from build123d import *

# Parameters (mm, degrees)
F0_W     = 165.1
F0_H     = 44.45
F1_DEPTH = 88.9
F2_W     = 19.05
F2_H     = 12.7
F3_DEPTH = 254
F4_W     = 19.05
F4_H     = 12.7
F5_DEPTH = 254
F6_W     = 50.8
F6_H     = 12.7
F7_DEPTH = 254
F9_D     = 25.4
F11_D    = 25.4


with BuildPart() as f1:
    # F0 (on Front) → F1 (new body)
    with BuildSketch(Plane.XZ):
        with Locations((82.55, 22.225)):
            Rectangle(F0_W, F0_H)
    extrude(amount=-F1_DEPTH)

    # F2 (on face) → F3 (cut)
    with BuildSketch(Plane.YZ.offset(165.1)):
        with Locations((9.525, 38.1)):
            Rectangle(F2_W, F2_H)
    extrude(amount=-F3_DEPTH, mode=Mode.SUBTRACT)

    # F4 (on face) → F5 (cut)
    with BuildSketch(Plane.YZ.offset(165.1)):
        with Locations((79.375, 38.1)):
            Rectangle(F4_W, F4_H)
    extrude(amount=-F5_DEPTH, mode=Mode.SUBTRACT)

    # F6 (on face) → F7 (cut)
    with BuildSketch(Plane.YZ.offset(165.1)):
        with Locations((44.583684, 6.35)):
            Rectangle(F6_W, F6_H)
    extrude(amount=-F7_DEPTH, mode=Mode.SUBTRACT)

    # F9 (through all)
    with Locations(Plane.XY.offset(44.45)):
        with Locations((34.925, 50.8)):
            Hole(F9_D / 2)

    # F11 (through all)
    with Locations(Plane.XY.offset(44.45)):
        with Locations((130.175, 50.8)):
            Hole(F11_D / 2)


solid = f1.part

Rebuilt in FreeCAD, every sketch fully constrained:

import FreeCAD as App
import Part
import Sketcher

V = App.Vector
Q = App.Units.Quantity


def add_polygon(sketch, points):
    """Adds a closed chain of lines whose ends are joined by coincident constraints."""
    first, n = sketch.GeometryCount, len(points)
    for a, b in zip(points, points[1:] + points[:1]):
        sketch.addGeometry(Part.LineSegment(App.Vector(*a, 0), App.Vector(*b, 0)), False)
    for i in range(n):
        sketch.addConstraint(Sketcher.Constraint("Coincident", first + i, 2, first + (i + 1) % n, 1))

doc = App.newDocument("Part")
params = doc.addObject("Spreadsheet::Sheet", "Params")
for row, (alias, value) in enumerate([
    ("sketch1_width", "6.5 in"),
    ("sketch1_height", "1.75 in"),
    ("pad1_length", "3.5 in"),
    ("sketch2_height", "0.5 in"),
    ("sketch2_width", "0.75 in"),
    ("pocket1_length", "10 in"),
    ("sketch3_height", "0.5 in"),
    ("sketch3_width", "0.75 in"),
    ("pocket2_length", "10 in"),
    ("sketch4_width", "2 in"),
    ("sketch4_height", "0.5 in"),
    ("pocket3_length", "10 in"),
    ("sketch5_diameter", "1 in"),
    ("hole_diameter", "1 in"),
    ("sketch6_diameter", "1 in"),
    ("hole2_diameter", "1 in"),
], start=1):
    params.set(f"A{row}", alias)
    params.set(f"B{row}", "=" + value)
    params.setAlias(f"B{row}", alias)

body = doc.addObject("PartDesign::Body", "Body")

# Sketch on XZ plane
sketch1 = body.newObject("Sketcher::SketchObject", "Sketch")
sketch1.AttachmentSupport = (doc.getObject("XZ_Plane"), [""])
sketch1.MapMode = "FlatFace"
add_polygon(sketch1, [(0, 44), (0, 0), (165, 0), (165, 44)])  # lines 0-3
sketch1.addConstraint(Sketcher.Constraint("Vertical", 0))
sketch1.addConstraint(Sketcher.Constraint("Horizontal", 1))
sketch1.addConstraint(Sketcher.Constraint("Vertical", 2))
sketch1.addConstraint(Sketcher.Constraint("Horizontal", 3))
sketch1.addConstraint(Sketcher.Constraint("Coincident", 0, 2, -1, 1))
sketch1.addConstraint(Sketcher.Constraint("DistanceX", 1, 1, 1, 2, Q("6.5 in")))
sketch1.addConstraint(Sketcher.Constraint("DistanceY", 0, 2, 0, 1, Q("1.75 in")))
sketch1.setExpression("Constraints[9]", "Params.sketch1_width")
sketch1.setExpression("Constraints[10]", "Params.sketch1_height")
pad1 = body.newObject("PartDesign::Pad", "Pad")
pad1.Profile = sketch1
pad1.setExpression("Length", "Params.pad1_length")
pad1.Reversed = True

# Sketch on YZ plane
sketch2 = body.newObject("Sketcher::SketchObject", "Sketch001")
sketch2.AttachmentSupport = (doc.getObject("YZ_Plane"), [""])
sketch2.MapMode = "FlatFace"
sketch2.AttachmentOffset = App.Placement(V(0, 0, 6.5 * 25.4), App.Rotation())
add_polygon(sketch2, [(0, 44), (0, 32), (19, 32), (19, 44)])  # lines 0-3
sketch2.addConstraint(Sketcher.Constraint("Vertical", 0))
sketch2.addConstraint(Sketcher.Constraint("Horizontal", 1))
sketch2.addConstraint(Sketcher.Constraint("Vertical", 2))
sketch2.addConstraint(Sketcher.Constraint("Horizontal", 3))
sketch2.addConstraint(Sketcher.Constraint("PointOnObject", 0, 2, -2))
sketch2.addConstraint(Sketcher.Constraint("DistanceY", 0, 2, 0, 1, Q("0.5 in")))
sketch2.addConstraint(Sketcher.Constraint("DistanceX", 1, 1, 1, 2, Q("0.75 in")))
sketch2.addConstraint(Sketcher.Constraint("DistanceY", -1, 1, 0, 2, Q("1.25 in")))
sketch2.setExpression("Constraints[9]", "Params.sketch2_height")
sketch2.setExpression("Constraints[10]", "Params.sketch2_width")
pocket1 = body.newObject("PartDesign::Pocket", "Pocket")
pocket1.Profile = sketch2
pocket1.setExpression("Length", "Params.pocket1_length")

# Sketch on YZ plane
sketch3 = body.newObject("Sketcher::SketchObject", "Sketch002")
sketch3.AttachmentSupport = (doc.getObject("YZ_Plane"), [""])
sketch3.MapMode = "FlatFace"
sketch3.AttachmentOffset = App.Placement(V(0, 0, 6.5 * 25.4), App.Rotation())
add_polygon(sketch3, [(70, 44), (70, 32), (89, 32), (89, 44)])  # lines 0-3
sketch3.addConstraint(Sketcher.Constraint("Vertical", 0))
sketch3.addConstraint(Sketcher.Constraint("Horizontal", 1))
sketch3.addConstraint(Sketcher.Constraint("Vertical", 2))
sketch3.addConstraint(Sketcher.Constraint("Horizontal", 3))
sketch3.addConstraint(Sketcher.Constraint("DistanceY", 0, 2, 0, 1, Q("0.5 in")))
sketch3.addConstraint(Sketcher.Constraint("DistanceX", 1, 1, 1, 2, Q("0.75 in")))
sketch3.addConstraint(Sketcher.Constraint("DistanceX", -1, 1, 1, 2, Q("3.5 in")))
sketch3.addConstraint(Sketcher.Constraint("DistanceY", -1, 1, 0, 2, Q("1.25 in")))
sketch3.setExpression("Constraints[8]", "Params.sketch3_height")
sketch3.setExpression("Constraints[9]", "Params.sketch3_width")
pocket2 = body.newObject("PartDesign::Pocket", "Pocket001")
pocket2.Profile = sketch3
pocket2.setExpression("Length", "Params.pocket2_length")

# Sketch on YZ plane
sketch4 = body.newObject("Sketcher::SketchObject", "Sketch003")
sketch4.AttachmentSupport = (doc.getObject("YZ_Plane"), [""])
sketch4.MapMode = "FlatFace"
sketch4.AttachmentOffset = App.Placement(V(0, 0, 6.5 * 25.4), App.Rotation())
add_polygon(sketch4, [(19, 13), (19, 0), (70, 0), (70, 13)])  # lines 0-3
sketch4.addConstraint(Sketcher.Constraint("Vertical", 0))
sketch4.addConstraint(Sketcher.Constraint("Horizontal", 1))
sketch4.addConstraint(Sketcher.Constraint("Vertical", 2))
sketch4.addConstraint(Sketcher.Constraint("Horizontal", 3))
sketch4.addConstraint(Sketcher.Constraint("PointOnObject", 0, 2, -1))
sketch4.addConstraint(Sketcher.Constraint("DistanceX", 1, 1, 1, 2, Q("2 in")))
sketch4.addConstraint(Sketcher.Constraint("DistanceY", 0, 2, 0, 1, Q("0.5 in")))
sketch4.addConstraint(Sketcher.Constraint("DistanceX", -1, 1, 0, 2, 19.183684))
sketch4.setExpression("Constraints[9]", "Params.sketch4_width")
sketch4.setExpression("Constraints[10]", "Params.sketch4_height")
pocket3 = body.newObject("PartDesign::Pocket", "Pocket002")
pocket3.Profile = sketch4
pocket3.setExpression("Length", "Params.pocket3_length")

# Sketch on XY plane
sketch5 = body.newObject("Sketcher::SketchObject", "Sketch004")
sketch5.AttachmentSupport = (doc.getObject("XY_Plane"), [""])
sketch5.MapMode = "FlatFace"
sketch5.AttachmentOffset = App.Placement(V(0, 0, 1.75 * 25.4), App.Rotation())
sketch5.addGeometry(Part.Circle(V(35, 51, 0), V(0, 0, 1), 13), False)
sketch5.addConstraint(Sketcher.Constraint("Diameter", 0, Q("1 in")))
sketch5.addConstraint(Sketcher.Constraint("DistanceY", -1, 1, 0, 3, Q("2 in")))
sketch5.addConstraint(Sketcher.Constraint("DistanceX", -1, 1, 0, 3, Q("1.375 in")))
sketch5.setExpression("Constraints[0]", "Params.sketch5_diameter")
doc.recompute()
hole = body.newObject("PartDesign::Hole", "Hole")
hole.Profile = sketch5
hole.ThreadType = "None"
hole.setExpression("Diameter", "Params.hole_diameter")
hole.DepthType = "ThroughAll"

# Sketch on XY plane
sketch6 = body.newObject("Sketcher::SketchObject", "Sketch005")
sketch6.AttachmentSupport = (doc.getObject("XY_Plane"), [""])
sketch6.MapMode = "FlatFace"
sketch6.AttachmentOffset = App.Placement(V(0, 0, 1.75 * 25.4), App.Rotation())
sketch6.addGeometry(Part.Circle(V(130, 51, 0), V(0, 0, 1), 13), False)
sketch6.addConstraint(Sketcher.Constraint("Diameter", 0, Q("1 in")))
sketch6.addConstraint(Sketcher.Constraint("DistanceY", -1, 1, 0, 3, Q("2 in")))
sketch6.addConstraint(Sketcher.Constraint("DistanceX", -1, 1, 0, 3, Q("5.125 in")))
sketch6.setExpression("Constraints[0]", "Params.sketch6_diameter")
doc.recompute()
hole2 = body.newObject("PartDesign::Hole", "Hole001")
hole2.Profile = sketch6
hole2.ThreadType = "None"
hole2.setExpression("Diameter", "Params.hole2_diameter")
hole2.DepthType = "ThroughAll"

doc.recompute()
